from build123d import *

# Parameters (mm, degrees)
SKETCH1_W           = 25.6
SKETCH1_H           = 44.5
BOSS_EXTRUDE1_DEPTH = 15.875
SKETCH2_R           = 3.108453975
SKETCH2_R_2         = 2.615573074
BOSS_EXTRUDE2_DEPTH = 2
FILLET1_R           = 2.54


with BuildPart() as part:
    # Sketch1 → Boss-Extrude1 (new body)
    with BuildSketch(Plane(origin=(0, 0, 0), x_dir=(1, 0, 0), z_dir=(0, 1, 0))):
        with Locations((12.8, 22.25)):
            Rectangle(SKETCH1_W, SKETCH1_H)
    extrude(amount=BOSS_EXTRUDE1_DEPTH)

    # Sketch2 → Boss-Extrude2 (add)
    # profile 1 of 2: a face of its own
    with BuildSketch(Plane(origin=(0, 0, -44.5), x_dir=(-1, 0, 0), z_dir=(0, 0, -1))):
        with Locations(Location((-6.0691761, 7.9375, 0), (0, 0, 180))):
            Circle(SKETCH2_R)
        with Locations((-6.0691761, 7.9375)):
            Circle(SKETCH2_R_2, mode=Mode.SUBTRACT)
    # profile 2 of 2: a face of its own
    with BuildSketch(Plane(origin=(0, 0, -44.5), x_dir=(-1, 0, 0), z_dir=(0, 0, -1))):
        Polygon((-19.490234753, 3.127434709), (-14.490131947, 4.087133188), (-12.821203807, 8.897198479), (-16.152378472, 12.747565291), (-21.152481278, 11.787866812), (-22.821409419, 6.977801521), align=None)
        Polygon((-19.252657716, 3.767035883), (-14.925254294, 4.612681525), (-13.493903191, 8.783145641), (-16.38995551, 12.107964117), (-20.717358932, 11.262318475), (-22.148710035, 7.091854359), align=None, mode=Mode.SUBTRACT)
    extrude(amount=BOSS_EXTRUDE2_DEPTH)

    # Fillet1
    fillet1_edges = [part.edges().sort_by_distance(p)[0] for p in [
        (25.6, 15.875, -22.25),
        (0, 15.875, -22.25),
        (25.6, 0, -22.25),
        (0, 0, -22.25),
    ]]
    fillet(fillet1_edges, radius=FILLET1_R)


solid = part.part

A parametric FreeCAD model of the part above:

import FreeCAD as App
import Part
import Sketcher

V = App.Vector
Q = App.Units.Quantity


def edges_at(feature, points):
    """Names of the edges that pass closest to the given points."""
    edges = feature.Shape.Edges
    near = lambda p: min(range(len(edges)), key=lambda i: edges[i].distToShape(Part.Vertex(*p))[0])
    return sorted({f"Edge{near(p) + 1}" for p in points})


def add_polygon(sketch, points):
    """Adds a closed chain of lines whose ends are joined by coincident constraints."""
    first, n = sketch.GeometryCount, len(points)
    for a, b in zip(points, points[1:] + points[:1]):
        sketch.addGeometry(Part.LineSegment(App.Vector(*a, 0), App.Vector(*b, 0)), False)
    for i in range(n):
        sketch.addConstraint(Sketcher.Constraint("Coincident", first + i, 2, first + (i + 1) % n, 1))

doc = App.newDocument("Part")
body = doc.addObject("PartDesign::Body", "Body")

# Sketch on XZ plane
sketch1 = body.newObject("Sketcher::SketchObject", "Sketch")
sketch1.AttachmentSupport = (doc.getObject("XZ_Plane"), [""])
sketch1.MapMode = "FlatFace"
add_polygon(sketch1, [(0, -44.5), (0, 0), (25.6, 0), (25.6, -44.5)])  # lines 0-3
sketch1.addConstraint(Sketcher.Constraint("Vertical", 0))
sketch1.addConstraint(Sketcher.Constraint("Horizontal", 1))
sketch1.addConstraint(Sketcher.Constraint("Vertical", 2))
sketch1.addConstraint(Sketcher.Constraint("Horizontal", 3))
sketch1.addConstraint(Sketcher.Constraint("Coincident", 0, 2, -1, 1))
sketch1.addConstraint(Sketcher.Constraint("DistanceX", 1, 1, 1, 2, Q("25.6 mm")))
sketch1.addConstraint(Sketcher.Constraint("DistanceY", 0, 1, 0, 2, Q("44.5 mm")))
pad1 = body.newObject("PartDesign::Pad", "Pad")
pad1.Profile = sketch1
pad1.Length = 15.875
pad1.Reversed = True

# Sketch on XY plane
sketch2 = body.newObject("Sketcher::SketchObject", "Sketch001")
sketch2.AttachmentSupport = (doc.getObject("XY_Plane"), [""])
sketch2.MapMode = "FlatFace"
sketch2.AttachmentOffset = App.Placement(V(0, 0, -44.5), App.Rotation())
sketch2.addGeometry(Part.Circle(V(6.069176, 7.9375, 0), V(0, 0, 1), 3.108454), False)  # 0
sketch2.addGeometry(Part.Circle(V(6.069176, 7.9375, 0), V(0, 0, 1), 2.615573), False)  # 1
add_polygon(sketch2, [(19.490235, 3.127435), (14.490132, 4.087133), (12.821204, 8.897198), (16.152378, 12.747565), (21.152481, 11.787867), (22.821409, 6.977802)])  # lines 2-7
add_polygon(sketch2, [(14.925254, 4.612682), (19.252658, 3.767036), (22.14871, 7.091854), (20.717359, 11.262318), (16.389956, 12.107964), (13.493903, 8.783146)])  # lines 8-13
sketch2.addConstraint(Sketcher.Constraint("Coincident", 1, 3, 0, 3))
sketch2.addConstraint(Sketcher.Constraint("Parallel", 2, 5))
sketch2.addConstraint(Sketcher.Constraint("Parallel", 3, 6))
sketch2.addConstraint(Sketcher.Constraint("Parallel", 4, 7))
sketch2.addConstraint(Sketcher.Constraint("Parallel", 8, 11))
sketch2.addConstraint(Sketcher.Constraint("Parallel", 9, 12))
sketch2.addConstraint(Sketcher.Constraint("Parallel", 10, 13))
sketch2.addConstraint(Sketcher.Constraint("Equal", 2, 3))
sketch2.addConstraint(Sketcher.Constraint("Equal", 3, 4))
sketch2.addConstraint(Sketcher.Constraint("Equal", 4, 5))
sketch2.addConstraint(Sketcher.Constraint("Equal", 8, 9))
sketch2.addConstraint(Sketcher.Constraint("Equal", 9, 10))
sketch2.addConstraint(Sketcher.Constraint("Equal", 10, 11))
sketch2.addConstraint(Sketcher.Constraint("Diameter", 0, Q("6.216908 mm")))
sketch2.addConstraint(Sketcher.Constraint("Diameter", 1, Q("5.231146 mm")))
sketch2.addConstraint(Sketcher.Constraint("DistanceY", -1, 1, 0, 3, Q("7.9375 mm")))
sketch2.addConstraint(Sketcher.Constraint("DistanceY", -1, 1, 3, 2, Q("8.897198 mm")))
sketch2.addConstraint(Sketcher.Constraint("DistanceY", -1, 1, 6, 2, Q("6.977802 mm")))
sketch2.addConstraint(Sketcher.Constraint("DistanceY", 5, 2, 4, 2, Q("0.959698 mm")))
sketch2.addConstraint(Sketcher.Constraint("DistanceY", 7, 2, 8, 2, Q("0.639601 mm")))
sketch2.addConstraint(Sketcher.Constraint("DistanceX", 9, 2, 6, 2, Q("0.672699 mm")))
sketch2.addConstraint(Sketcher.Constraint("DistanceX", 8, 2, 10, 2, Q("1.464701 mm")))
sketch2.addConstraint(Sketcher.Constraint("DistanceY", 11, 2, 4, 2, Q("0.639601 mm")))
sketch2.addConstraint(Sketcher.Constraint("DistanceX", 3, 2, 12, 2, Q("0.672699 mm")))
sketch2.addConstraint(Sketcher.Constraint("Distance", 2, Q("5.09137 mm")))
sketch2.addConstraint(Sketcher.Constraint("DistanceX", -1, 1, 2, 2, Q("14.490132 mm")))
sketch2.addConstraint(Sketcher.Constraint("DistanceX", -1, 1, 4, 2, Q("16.152378 mm")))
sketch2.addConstraint(Sketcher.Constraint("DistanceX", -1, 1, 10, 2, Q("20.717359 mm")))
sketch2.addConstraint(Sketcher.Constraint("DistanceX", -1, 1, 0, 3, Q("6.069176 mm")))
pad2 = body.newObject("PartDesign::Pad", "Pad001")
pad2.Profile = sketch2
pad2.Length = 2
pad2.Reversed = True
doc.recompute()

fillet = body.newObject("PartDesign::Fillet", "Fillet")
fillet.Base = (pad2, edges_at(pad2, [
    (25.6, 15.875, -22.25),
    (0, 15.875, -22.25),
    (25.6, 0, -22.25),
    (0, 0, -22.25),
]))
fillet.Radius = 2.54

doc.recompute()
